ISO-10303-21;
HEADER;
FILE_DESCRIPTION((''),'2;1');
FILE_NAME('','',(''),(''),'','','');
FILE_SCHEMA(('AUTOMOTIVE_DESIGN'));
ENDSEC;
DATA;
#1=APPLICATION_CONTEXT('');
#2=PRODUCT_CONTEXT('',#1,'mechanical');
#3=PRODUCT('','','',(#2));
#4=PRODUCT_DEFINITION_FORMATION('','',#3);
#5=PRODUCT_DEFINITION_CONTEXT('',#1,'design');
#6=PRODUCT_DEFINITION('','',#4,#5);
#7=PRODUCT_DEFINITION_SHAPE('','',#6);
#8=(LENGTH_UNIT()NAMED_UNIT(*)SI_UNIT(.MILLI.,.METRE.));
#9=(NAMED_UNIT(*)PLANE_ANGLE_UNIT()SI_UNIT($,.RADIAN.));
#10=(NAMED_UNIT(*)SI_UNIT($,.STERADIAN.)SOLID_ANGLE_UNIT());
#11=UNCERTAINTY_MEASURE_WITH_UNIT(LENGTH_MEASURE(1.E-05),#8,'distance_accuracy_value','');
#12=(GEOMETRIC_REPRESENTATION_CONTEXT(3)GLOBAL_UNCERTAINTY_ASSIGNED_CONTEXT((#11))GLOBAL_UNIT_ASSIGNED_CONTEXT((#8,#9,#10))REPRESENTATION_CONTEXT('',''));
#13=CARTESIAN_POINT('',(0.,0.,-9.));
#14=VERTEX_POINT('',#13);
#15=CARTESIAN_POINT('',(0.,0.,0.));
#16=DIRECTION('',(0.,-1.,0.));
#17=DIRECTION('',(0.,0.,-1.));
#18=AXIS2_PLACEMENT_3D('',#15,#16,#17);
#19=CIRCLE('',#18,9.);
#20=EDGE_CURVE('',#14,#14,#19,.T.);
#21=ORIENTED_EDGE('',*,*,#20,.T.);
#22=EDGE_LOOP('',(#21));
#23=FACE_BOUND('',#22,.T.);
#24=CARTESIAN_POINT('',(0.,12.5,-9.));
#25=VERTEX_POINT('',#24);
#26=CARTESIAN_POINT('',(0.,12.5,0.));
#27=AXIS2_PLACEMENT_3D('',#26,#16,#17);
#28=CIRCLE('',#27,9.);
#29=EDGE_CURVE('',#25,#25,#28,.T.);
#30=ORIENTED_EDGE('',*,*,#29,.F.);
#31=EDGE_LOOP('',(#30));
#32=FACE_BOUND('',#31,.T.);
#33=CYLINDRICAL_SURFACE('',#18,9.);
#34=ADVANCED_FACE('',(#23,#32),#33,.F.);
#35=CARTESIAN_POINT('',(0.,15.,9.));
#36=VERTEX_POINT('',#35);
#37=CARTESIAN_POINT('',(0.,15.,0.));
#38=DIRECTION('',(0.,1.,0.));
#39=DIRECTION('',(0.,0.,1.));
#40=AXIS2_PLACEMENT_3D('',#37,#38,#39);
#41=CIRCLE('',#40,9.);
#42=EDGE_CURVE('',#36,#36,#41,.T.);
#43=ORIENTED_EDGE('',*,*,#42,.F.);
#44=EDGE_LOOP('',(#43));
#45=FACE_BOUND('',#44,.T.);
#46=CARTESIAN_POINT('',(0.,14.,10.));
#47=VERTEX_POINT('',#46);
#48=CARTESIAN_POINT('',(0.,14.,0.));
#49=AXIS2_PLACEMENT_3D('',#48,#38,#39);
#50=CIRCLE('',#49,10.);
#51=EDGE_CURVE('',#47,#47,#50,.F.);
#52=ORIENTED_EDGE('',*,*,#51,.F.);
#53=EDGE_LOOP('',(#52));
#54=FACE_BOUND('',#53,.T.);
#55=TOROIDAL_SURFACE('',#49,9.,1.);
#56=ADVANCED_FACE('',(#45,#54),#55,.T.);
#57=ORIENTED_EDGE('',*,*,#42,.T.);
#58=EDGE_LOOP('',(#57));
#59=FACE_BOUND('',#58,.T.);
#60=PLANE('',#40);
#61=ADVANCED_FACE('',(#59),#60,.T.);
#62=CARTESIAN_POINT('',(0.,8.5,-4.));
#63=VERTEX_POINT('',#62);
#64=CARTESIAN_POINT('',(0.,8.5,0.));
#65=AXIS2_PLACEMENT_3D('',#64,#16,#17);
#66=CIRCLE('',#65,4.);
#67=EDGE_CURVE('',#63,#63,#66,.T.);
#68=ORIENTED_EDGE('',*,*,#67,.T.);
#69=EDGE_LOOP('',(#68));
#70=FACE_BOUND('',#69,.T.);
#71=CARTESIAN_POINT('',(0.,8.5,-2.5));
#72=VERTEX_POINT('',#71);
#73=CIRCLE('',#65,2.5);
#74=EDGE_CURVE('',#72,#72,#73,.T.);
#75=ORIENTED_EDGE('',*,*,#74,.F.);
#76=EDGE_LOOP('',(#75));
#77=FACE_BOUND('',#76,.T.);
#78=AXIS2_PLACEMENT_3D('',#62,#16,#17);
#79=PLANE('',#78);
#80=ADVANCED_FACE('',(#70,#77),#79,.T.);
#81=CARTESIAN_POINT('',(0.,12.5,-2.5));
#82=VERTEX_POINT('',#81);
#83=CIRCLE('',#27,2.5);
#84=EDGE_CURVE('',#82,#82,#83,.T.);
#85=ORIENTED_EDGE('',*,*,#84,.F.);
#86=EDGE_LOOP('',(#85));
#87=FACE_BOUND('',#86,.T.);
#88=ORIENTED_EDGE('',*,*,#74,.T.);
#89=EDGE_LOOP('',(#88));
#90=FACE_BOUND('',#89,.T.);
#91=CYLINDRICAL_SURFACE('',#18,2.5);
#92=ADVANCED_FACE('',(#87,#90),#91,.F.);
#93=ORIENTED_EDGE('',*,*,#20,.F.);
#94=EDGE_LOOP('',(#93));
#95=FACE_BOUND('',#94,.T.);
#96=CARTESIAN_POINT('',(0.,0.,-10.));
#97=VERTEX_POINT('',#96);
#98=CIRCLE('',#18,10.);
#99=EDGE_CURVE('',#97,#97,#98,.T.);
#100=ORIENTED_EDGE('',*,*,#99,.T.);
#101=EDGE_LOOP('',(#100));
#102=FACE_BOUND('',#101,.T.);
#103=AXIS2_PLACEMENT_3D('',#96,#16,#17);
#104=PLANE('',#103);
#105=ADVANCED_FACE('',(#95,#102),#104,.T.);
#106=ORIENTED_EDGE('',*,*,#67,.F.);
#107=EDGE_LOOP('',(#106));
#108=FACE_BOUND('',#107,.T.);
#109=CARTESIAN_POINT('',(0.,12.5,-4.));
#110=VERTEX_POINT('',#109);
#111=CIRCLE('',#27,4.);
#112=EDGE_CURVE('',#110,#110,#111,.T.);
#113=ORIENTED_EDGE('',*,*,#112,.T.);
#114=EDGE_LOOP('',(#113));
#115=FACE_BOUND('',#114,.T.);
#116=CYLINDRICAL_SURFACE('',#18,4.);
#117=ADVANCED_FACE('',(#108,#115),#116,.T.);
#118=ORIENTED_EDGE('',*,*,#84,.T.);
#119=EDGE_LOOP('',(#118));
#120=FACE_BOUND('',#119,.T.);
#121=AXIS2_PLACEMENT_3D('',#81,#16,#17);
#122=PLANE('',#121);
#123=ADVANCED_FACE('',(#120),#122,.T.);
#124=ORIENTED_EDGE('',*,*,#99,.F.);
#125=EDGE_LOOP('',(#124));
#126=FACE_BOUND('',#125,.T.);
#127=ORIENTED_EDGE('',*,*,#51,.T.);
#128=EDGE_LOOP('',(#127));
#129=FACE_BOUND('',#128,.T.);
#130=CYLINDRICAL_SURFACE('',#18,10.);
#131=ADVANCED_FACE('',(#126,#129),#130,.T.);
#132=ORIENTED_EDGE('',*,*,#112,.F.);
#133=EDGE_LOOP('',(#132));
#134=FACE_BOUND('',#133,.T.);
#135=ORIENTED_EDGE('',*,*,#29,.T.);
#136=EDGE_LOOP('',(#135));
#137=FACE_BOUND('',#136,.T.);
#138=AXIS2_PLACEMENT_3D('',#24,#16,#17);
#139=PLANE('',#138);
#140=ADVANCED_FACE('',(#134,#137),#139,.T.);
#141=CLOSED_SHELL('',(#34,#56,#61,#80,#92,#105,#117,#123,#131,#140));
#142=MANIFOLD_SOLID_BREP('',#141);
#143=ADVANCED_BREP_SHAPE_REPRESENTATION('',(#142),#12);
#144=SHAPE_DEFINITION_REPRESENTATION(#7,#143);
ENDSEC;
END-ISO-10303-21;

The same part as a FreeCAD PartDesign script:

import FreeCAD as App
import Part
import Sketcher
Q = App.Units.Quantity


def edges_at(feature, points):
    """Names of the edges that pass closest to the given points."""
    edges = feature.Shape.Edges
    near = lambda p: min(range(len(edges)), key=lambda i: edges[i].distToShape(Part.Vertex(*p))[0])
    return sorted({f"Edge{near(p) + 1}" for p in points})

doc = App.newDocument("Part")
params = doc.addObject("Spreadsheet::Sheet", "Params")
for row, (alias, value) in enumerate([
    ("sketch1_width", "15 mm"),
    ("sketch1_width2", "4 mm"),
    ("sketch1_height", "1 mm"),
    ("sketch1_height2", "10 mm"),
    ("sketch1_height3", "5 mm"),
    ("revolution_angle", "360 deg"),
    ("fillet_radius", "1 mm"),
], start=1):
    params.set(f"A{row}", alias)
    params.set(f"B{row}", "=" + value)
    params.setAlias(f"B{row}", alias)

body = doc.addObject("PartDesign::Body", "Body")

# Sketch on YZ plane
sketch1 = doc.addObject("Sketcher::SketchObject", "Sketch")
body.addObject(sketch1)
sketch1.AttachmentSupport = (doc.YZ_Plane, [""])
sketch1.MapMode = "FlatFace"
sketch1.addGeometry([
    Part.LineSegment(App.Vector(12.5, -9, 0), App.Vector(0, -9, 0)),  # 0
    Part.LineSegment(App.Vector(0, -9, 0), App.Vector(0, -10, 0)),  # 1
    Part.LineSegment(App.Vector(0, -10, 0), App.Vector(15, -10, 0)),  # 2
    Part.LineSegment(App.Vector(15, -10, 0), App.Vector(15, 0, 0)),  # 3
    Part.LineSegment(App.Vector(15, 0, 0), App.Vector(12.5, 0, 0)),  # 4
    Part.LineSegment(App.Vector(12.5, 0, 0), App.Vector(12.5, -2.5, 0)),  # 5
    Part.LineSegment(App.Vector(12.5, -2.5, 0), App.Vector(8.5, -2.5, 0)),  # 6
    Part.LineSegment(App.Vector(8.5, -2.5, 0), App.Vector(8.5, -4, 0)),  # 7
    Part.LineSegment(App.Vector(8.5, -4, 0), App.Vector(12.5, -4, 0)),  # 8
    Part.LineSegment(App.Vector(12.5, -4, 0), App.Vector(12.5, -9, 0)),  # 9
], False)
sketch1.addConstraint([
    Sketcher.Constraint("Coincident", 0, 2, 1, 1),
    Sketcher.Constraint("Coincident", 1, 2, 2, 1),
    Sketcher.Constraint("Coincident", 2, 2, 3, 1),
    Sketcher.Constraint("Coincident", 3, 2, 4, 1),
    Sketcher.Constraint("Coincident", 4, 2, 5, 1),
    Sketcher.Constraint("Coincident", 5, 2, 6, 1),
    Sketcher.Constraint("Coincident", 6, 2, 7, 1),
    Sketcher.Constraint("Coincident", 7, 2, 8, 1),
    Sketcher.Constraint("Coincident", 8, 2, 9, 1),
    Sketcher.Constraint("Coincident", 9, 2, 0, 1),
    Sketcher.Constraint("Horizontal", 0),
    Sketcher.Constraint("Vertical", 1),
    Sketcher.Constraint("Horizontal", 2),
    Sketcher.Constraint("Vertical", 3),
    Sketcher.Constraint("Horizontal", 4),
    Sketcher.Constraint("Vertical", 5),
    Sketcher.Constraint("Horizontal", 6),
    Sketcher.Constraint("Vertical", 7),
    Sketcher.Constraint("Horizontal", 8),
    Sketcher.Constraint("Vertical", 9),
    Sketcher.Constraint("PointOnObject", 0, 2, -2),
    Sketcher.Constraint("PointOnObject", 3, 2, -1),
    Sketcher.Constraint("Vertical", 5, 2, 8, 2),
    Sketcher.Constraint("Equal", 4, 5),
    Sketcher.Constraint("DistanceX", 2, 1, 2, 2, Q("15 mm")),
    Sketcher.Constraint("DistanceX", 6, 2, 6, 1, Q("4 mm")),
    Sketcher.Constraint("DistanceY", 1, 2, 1, 1, Q("1 mm")),
    Sketcher.Constraint("DistanceY", 3, 1, 3, 2, Q("10 mm")),
    Sketcher.Constraint("DistanceY", 9, 2, 9, 1, Q("5 mm")),
    Sketcher.Constraint("DistanceX", 0, 2, 0, 1, Q("12.5 mm")),
])
sketch1.setExpression("Constraints[24]", "Params.sketch1_width")
sketch1.setExpression("Constraints[25]", "Params.sketch1_width2")
sketch1.setExpression("Constraints[26]", "Params.sketch1_height")
sketch1.setExpression("Constraints[27]", "Params.sketch1_height2")
sketch1.setExpression("Constraints[28]", "Params.sketch1_height3")
revolution = doc.addObject("PartDesign::Revolution", "Revolution")
body.addObject(revolution)
revolution.Profile = sketch1
revolution.ReferenceAxis = (sketch1, ["H_Axis"])
revolution.setExpression("Angle", "Params.revolution_angle")
doc.recompute()

fillet = doc.addObject("PartDesign::Fillet", "Fillet")
body.addObject(fillet)
fillet.Base = (revolution, edges_at(revolution, [(0, 15, 10)]))
fillet.setExpression("Radius", "Params.fillet_radius")

doc.recompute()
